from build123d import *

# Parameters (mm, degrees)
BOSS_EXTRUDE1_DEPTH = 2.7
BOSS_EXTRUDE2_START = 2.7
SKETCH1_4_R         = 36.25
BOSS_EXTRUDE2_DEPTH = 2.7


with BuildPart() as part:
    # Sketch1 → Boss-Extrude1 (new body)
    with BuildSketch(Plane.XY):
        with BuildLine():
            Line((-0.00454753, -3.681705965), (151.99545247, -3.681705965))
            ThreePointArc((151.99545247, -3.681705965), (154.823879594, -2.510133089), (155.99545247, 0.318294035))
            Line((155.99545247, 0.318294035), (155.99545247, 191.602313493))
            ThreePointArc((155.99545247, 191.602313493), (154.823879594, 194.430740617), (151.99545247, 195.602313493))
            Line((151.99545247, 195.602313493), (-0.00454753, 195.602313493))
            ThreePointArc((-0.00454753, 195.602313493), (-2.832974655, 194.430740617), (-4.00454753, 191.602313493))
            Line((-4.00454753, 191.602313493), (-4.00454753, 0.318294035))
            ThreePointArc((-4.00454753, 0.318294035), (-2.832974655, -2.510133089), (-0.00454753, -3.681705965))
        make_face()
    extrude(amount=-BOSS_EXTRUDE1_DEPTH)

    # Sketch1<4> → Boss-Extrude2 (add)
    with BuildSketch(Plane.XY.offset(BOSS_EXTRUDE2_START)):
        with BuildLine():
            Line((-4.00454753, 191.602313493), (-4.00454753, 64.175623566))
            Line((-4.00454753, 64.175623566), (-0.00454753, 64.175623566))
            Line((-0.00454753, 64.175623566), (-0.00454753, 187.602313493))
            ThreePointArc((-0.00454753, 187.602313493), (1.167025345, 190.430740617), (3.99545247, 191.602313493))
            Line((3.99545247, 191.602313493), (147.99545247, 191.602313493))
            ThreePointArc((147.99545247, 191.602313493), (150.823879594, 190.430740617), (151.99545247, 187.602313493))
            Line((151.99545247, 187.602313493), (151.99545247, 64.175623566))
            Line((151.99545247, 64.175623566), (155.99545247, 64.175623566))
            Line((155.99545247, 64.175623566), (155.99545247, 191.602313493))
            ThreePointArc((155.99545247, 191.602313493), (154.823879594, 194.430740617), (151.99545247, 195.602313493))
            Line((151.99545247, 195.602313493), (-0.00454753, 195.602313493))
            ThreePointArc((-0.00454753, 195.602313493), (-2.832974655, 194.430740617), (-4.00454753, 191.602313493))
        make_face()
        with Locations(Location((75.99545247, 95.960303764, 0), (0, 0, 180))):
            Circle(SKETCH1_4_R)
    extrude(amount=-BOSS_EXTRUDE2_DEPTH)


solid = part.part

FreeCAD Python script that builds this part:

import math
import FreeCAD as App
import Part
import Sketcher

V = App.Vector
Q = App.Units.Quantity

doc = App.newDocument("Part")
body = doc.addObject("PartDesign::Body", "Body")

sketch1 = body.newObject("Sketcher::SketchObject", "Sketch")
sketch1.AttachmentSupport = (doc.getObject("XY_Plane"), [""])
sketch1.MapMode = "FlatFace"
sketch1.addGeometry(Part.LineSegment(V(0, -3.7, 0), V(152, -3.7, 0)), False)
sketch1.addGeometry(Part.ArcOfCircle(Part.Circle(V(152, 0.3, 0), V(0, 0, 1), 4), math.radians(-90), math.radians(0)), False)
sketch1.addGeometry(Part.LineSegment(V(156, 0.3, 0), V(156, 191.6, 0)), False)
sketch1.addGeometry(Part.ArcOfCircle(Part.Circle(V(152, 191.6, 0), V(0, 0, 1), 4), math.radians(0), math.radians(90)), False)
sketch1.addGeometry(Part.LineSegment(V(152, 195.6, 0), V(0, 195.6, 0)), False)
sketch1.addGeometry(Part.ArcOfCircle(Part.Circle(V(0, 191.6, 0), V(0, 0, 1), 4), math.radians(90), math.radians(180)), False)
sketch1.addGeometry(Part.LineSegment(V(-4, 191.6, 0), V(-4, 0.3, 0)), False)
sketch1.addGeometry(Part.ArcOfCircle(Part.Circle(V(0, 0.3, 0), V(0, 0, 1), 4), math.radians(-180), math.radians(-90)), False)
sketch1.addConstraint(Sketcher.Constraint("Tangent", 0, 2, 1, 1))
sketch1.addConstraint(Sketcher.Constraint("Tangent", 1, 2, 2, 1))
sketch1.addConstraint(Sketcher.Constraint("Tangent", 2, 2, 3, 1))
sketch1.addConstraint(Sketcher.Constraint("Tangent", 3, 2, 4, 1))
sketch1.addConstraint(Sketcher.Constraint("Tangent", 4, 2, 5, 1))
sketch1.addConstraint(Sketcher.Constraint("Tangent", 5, 2, 6, 1))
sketch1.addConstraint(Sketcher.Constraint("Tangent", 6, 2, 7, 1))
sketch1.addConstraint(Sketcher.Constraint("Tangent", 7, 2, 0, 1))
sketch1.addConstraint(Sketcher.Constraint("Horizontal", 0))
sketch1.addConstraint(Sketcher.Constraint("Vertical", 2))
sketch1.addConstraint(Sketcher.Constraint("Horizontal", 4))
sketch1.addConstraint(Sketcher.Constraint("Vertical", 6))
sketch1.addConstraint(Sketcher.Constraint("Equal", 1, 3))
sketch1.addConstraint(Sketcher.Constraint("Equal", 3, 5))
sketch1.addConstraint(Sketcher.Constraint("Equal", 5, 7))
sketch1.addConstraint(Sketcher.Constraint("Radius", 1, Q("4 mm")))
sketch1.addConstraint(Sketcher.Constraint("DistanceX", 0, 1, 0, 2, Q("152 mm")))
sketch1.addConstraint(Sketcher.Constraint("DistanceY", 2, 1, 2, 2, Q("191.284019 mm")))
sketch1.addConstraint(Sketcher.Constraint("DistanceX", -1, 1, 1, 3, Q("151.995452 mm")))
sketch1.addConstraint(Sketcher.Constraint("DistanceY", -1, 1, 1, 3, Q("0.318294 mm")))
pad1 = body.newObject("PartDesign::Pad", "Pad")
pad1.Profile = sketch1
pad1.Length = 2.7
pad1.Reversed = True

sketch2 = body.newObject("Sketcher::SketchObject", "Sketch001")
sketch2.AttachmentSupport = (doc.getObject("XY_Plane"), [""])
sketch2.MapMode = "FlatFace"
sketch2.AttachmentOffset = App.Placement(V(0, 0, 2.7), App.Rotation())
sketch2.addGeometry(Part.LineSegment(V(-4, 191.6, 0), V(-4, 64.2, 0)), False)
sketch2.addGeometry(Part.LineSegment(V(-4, 64.2, 0), V(0, 64.2, 0)), False)
sketch2.addGeometry(Part.LineSegment(V(0, 64.2, 0), V(0, 187.6, 0)), False)
sketch2.addGeometry(Part.ArcOfCircle(Part.Circle(V(4, 187.6, 0), V(0, 0, 1), 4), math.radians(90), math.radians(180)), False)
sketch2.addGeometry(Part.LineSegment(V(4, 191.6, 0), V(148, 191.6, 0)), False)
sketch2.addGeometry(Part.ArcOfCircle(Part.Circle(V(148, 187.6, 0), V(0, 0, 1), 4), math.radians(0), math.radians(90)), False)
sketch2.addGeometry(Part.LineSegment(V(152, 187.6, 0), V(152, 64.2, 0)), False)
sketch2.addGeometry(Part.LineSegment(V(152, 64.2, 0), V(156, 64.2, 0)), False)
sketch2.addGeometry(Part.LineSegment(V(156, 64.2, 0), V(156, 191.6, 0)), False)
sketch2.addGeometry(Part.ArcOfCircle(Part.Circle(V(152, 191.6, 0), V(0, 0, 1), 4), math.radians(0), math.radians(90)), False)
sketch2.addGeometry(Part.LineSegment(V(152, 195.6, 0), V(0, 195.6, 0)), False)
sketch2.addGeometry(Part.ArcOfCircle(Part.Circle(V(0, 191.6, 0), V(0, 0, 1), 4), math.radians(90), math.radians(180)), False)
sketch2.addGeometry(Part.Circle(V(76, 96, 0), V(0, 0, 1), 36.2), False)
sketch2.addConstraint(Sketcher.Constraint("Coincident", 0, 2, 1, 1))
sketch2.addConstraint(Sketcher.Constraint("Coincident", 1, 2, 2, 1))
sketch2.addConstraint(Sketcher.Constraint("Tangent", 2, 2, 3, 2))
sketch2.addConstraint(Sketcher.Constraint("Tangent", 3, 1, 4, 1))
sketch2.addConstraint(Sketcher.Constraint("Tangent", 4, 2, 5, 2))
sketch2.addConstraint(Sketcher.Constraint("Tangent", 5, 1, 6, 1))
sketch2.addConstraint(Sketcher.Constraint("Coincident", 6, 2, 7, 1))
sketch2.addConstraint(Sketcher.Constraint("Coincident", 7, 2, 8, 1))
sketch2.addConstraint(Sketcher.Constraint("Tangent", 8, 2, 9, 1))
sketch2.addConstraint(Sketcher.Constraint("Tangent", 9, 2, 10, 1))
sketch2.addConstraint(Sketcher.Constraint("Tangent", 10, 2, 11, 1))
sketch2.addConstraint(Sketcher.Constraint("Tangent", 11, 2, 0, 1))
sketch2.addConstraint(Sketcher.Constraint("Vertical", 0))
sketch2.addConstraint(Sketcher.Constraint("Horizontal", 1))
sketch2.addConstraint(Sketcher.Constraint("Vertical", 2))
sketch2.addConstraint(Sketcher.Constraint("Horizontal", 4))
sketch2.addConstraint(Sketcher.Constraint("Vertical", 6))
sketch2.addConstraint(Sketcher.Constraint("Horizontal", 7))
sketch2.addConstraint(Sketcher.Constraint("Vertical", 8))
sketch2.addConstraint(Sketcher.Constraint("Horizontal", 10))
sketch2.addConstraint(Sketcher.Constraint("Equal", 3, 5))
sketch2.addConstraint(Sketcher.Constraint("Equal", 5, 9))
sketch2.addConstraint(Sketcher.Constraint("Equal", 9, 11))
sketch2.addConstraint(Sketcher.Constraint("Horizontal", 11, 3, 3, 1))
sketch2.addConstraint(Sketcher.Constraint("Horizontal", 1, 2, 6, 2))
sketch2.addConstraint(Sketcher.Constraint("Vertical", 11, 3, 1, 2))
sketch2.addConstraint(Sketcher.Constraint("Vertical", 9, 3, 5, 1))
sketch2.addConstraint(Sketcher.Constraint("Radius", 3, Q("4 mm")))
sketch2.addConstraint(Sketcher.Constraint("Diameter", 12, Q("72.5 mm")))
sketch2.addConstraint(Sketcher.Constraint("DistanceX", 4, 1, 4, 2, Q("144 mm")))
sketch2.addConstraint(Sketcher.Constraint("DistanceX", 12, 3, 5, 3, Q("72 mm")))
sketch2.addConstraint(Sketcher.Constraint("DistanceY", 0, 2, 0, 1, Q("127.42669 mm")))
sketch2.addConstraint(Sketcher.Constraint("DistanceY", 12, 3, 5, 3, Q("91.64201 mm")))
sketch2.addConstraint(Sketcher.Constraint("DistanceX", -1, 1, 3, 3, Q("3.995452 mm")))
sketch2.addConstraint(Sketcher.Constraint("DistanceY", -1, 1, 3, 3, Q("187.602313 mm")))
pad2 = body.newObject("PartDesign::Pad", "Pad001")
pad2.Profile = sketch2
pad2.Length = 2.7
pad2.Reversed = True

doc.recompute()
